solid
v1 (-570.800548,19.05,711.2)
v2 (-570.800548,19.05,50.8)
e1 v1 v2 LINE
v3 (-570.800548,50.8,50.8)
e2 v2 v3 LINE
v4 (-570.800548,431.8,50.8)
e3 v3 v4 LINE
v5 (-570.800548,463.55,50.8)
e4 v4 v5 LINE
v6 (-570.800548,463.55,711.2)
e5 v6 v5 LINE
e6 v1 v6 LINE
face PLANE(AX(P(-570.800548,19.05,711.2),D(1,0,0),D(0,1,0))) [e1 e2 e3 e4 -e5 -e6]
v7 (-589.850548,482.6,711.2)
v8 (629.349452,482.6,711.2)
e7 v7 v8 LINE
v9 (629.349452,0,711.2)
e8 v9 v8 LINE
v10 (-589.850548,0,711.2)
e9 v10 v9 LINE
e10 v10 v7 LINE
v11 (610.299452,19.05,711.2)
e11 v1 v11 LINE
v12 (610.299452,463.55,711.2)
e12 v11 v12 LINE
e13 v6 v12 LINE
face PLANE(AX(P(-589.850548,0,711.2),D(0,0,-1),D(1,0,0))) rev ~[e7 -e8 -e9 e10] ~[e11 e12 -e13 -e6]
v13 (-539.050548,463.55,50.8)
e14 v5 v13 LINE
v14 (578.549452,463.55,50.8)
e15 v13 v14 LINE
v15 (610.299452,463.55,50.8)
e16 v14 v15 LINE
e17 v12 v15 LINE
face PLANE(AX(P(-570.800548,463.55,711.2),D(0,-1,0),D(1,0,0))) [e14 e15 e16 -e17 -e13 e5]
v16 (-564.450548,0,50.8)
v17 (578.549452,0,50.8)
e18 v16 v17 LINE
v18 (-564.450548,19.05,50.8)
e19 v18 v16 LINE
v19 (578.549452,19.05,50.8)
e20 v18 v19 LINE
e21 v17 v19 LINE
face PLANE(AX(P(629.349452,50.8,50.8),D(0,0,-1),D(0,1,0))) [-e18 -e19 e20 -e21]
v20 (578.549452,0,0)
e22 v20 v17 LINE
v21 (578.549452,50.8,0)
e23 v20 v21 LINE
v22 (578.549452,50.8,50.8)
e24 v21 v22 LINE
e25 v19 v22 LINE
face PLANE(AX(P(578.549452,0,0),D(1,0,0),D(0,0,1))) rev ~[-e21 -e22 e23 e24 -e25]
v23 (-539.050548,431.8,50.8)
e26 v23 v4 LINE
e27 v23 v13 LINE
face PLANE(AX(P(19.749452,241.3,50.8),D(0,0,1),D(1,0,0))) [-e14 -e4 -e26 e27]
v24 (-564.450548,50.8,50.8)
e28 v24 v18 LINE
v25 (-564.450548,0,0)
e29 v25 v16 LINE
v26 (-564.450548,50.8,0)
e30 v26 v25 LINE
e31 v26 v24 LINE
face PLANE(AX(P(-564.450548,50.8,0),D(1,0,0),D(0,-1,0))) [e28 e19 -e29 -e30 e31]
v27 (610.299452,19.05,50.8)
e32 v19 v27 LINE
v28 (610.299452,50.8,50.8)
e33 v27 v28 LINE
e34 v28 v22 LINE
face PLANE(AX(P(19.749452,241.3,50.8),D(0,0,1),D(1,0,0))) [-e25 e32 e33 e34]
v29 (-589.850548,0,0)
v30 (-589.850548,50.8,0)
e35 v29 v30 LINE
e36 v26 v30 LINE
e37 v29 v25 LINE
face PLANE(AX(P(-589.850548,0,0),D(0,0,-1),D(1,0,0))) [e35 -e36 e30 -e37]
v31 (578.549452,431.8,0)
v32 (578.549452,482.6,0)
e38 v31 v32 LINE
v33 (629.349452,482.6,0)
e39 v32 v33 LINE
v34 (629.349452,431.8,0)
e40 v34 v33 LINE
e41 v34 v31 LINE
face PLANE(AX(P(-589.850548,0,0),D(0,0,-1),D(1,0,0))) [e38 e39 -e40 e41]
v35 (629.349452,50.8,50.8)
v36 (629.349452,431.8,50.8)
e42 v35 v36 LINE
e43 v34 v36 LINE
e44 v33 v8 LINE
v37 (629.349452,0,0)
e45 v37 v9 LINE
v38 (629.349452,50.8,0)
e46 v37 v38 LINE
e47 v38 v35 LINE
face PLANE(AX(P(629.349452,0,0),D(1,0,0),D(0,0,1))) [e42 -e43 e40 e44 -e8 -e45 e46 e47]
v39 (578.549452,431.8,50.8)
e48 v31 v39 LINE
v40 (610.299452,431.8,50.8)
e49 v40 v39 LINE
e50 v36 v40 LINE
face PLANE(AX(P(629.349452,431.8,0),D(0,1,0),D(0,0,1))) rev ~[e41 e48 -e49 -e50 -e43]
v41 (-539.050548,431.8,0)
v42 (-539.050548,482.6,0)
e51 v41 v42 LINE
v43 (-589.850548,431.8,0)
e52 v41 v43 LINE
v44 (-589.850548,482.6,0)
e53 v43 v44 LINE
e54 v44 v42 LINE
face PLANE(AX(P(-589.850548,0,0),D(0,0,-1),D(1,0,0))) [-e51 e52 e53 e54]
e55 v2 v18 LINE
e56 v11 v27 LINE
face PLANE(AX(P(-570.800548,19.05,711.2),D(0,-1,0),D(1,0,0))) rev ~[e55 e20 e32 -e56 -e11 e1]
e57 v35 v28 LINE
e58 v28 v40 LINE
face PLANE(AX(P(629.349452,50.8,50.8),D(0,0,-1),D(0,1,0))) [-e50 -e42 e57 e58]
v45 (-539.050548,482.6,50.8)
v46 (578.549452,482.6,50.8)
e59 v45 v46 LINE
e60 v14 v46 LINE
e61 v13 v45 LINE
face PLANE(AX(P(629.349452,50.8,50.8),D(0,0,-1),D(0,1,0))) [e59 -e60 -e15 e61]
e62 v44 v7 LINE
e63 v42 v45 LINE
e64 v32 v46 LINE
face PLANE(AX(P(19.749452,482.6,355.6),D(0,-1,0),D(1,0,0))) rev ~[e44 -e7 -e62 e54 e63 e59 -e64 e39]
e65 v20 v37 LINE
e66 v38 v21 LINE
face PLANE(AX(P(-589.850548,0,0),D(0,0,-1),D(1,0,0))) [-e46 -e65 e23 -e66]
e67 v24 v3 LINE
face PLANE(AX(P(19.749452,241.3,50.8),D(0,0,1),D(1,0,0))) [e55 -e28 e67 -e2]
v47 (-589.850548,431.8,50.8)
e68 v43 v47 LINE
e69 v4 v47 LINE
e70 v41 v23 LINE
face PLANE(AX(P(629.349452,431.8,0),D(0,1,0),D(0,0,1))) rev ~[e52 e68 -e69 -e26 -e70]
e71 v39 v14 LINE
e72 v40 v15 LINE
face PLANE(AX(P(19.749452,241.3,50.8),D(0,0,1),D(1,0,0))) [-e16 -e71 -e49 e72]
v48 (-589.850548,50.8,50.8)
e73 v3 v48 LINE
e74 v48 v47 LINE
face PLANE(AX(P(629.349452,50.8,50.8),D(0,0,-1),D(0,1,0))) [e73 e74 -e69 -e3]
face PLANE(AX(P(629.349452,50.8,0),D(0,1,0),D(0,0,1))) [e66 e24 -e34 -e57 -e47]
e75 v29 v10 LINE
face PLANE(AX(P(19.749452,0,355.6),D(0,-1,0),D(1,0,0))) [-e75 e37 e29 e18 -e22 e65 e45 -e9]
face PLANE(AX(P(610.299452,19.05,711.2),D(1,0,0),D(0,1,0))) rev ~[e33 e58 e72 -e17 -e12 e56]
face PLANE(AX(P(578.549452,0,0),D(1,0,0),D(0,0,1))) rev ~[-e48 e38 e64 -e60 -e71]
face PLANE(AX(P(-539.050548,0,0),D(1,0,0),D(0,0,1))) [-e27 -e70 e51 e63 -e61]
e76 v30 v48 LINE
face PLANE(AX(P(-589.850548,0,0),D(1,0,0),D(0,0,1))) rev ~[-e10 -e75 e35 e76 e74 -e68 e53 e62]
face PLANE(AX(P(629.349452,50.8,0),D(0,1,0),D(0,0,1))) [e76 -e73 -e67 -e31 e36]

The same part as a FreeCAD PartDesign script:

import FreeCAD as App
import Part
import Sketcher
Q = App.Units.Quantity

doc = App.newDocument("Part")
body = doc.addObject("PartDesign::Body", "Body")

sketch1 = body.newObject("Sketcher::SketchObject", "Sketch")
sketch1.AttachmentSupport = (doc.getObject("XZ_Plane"), [""])
sketch1.MapMode = "FlatFace"
sketch1.addGeometry([
    Part.LineSegment(App.Vector(-589.850548, 711.2, 0), App.Vector(-589.850548, 0, 0)),
    Part.LineSegment(App.Vector(-589.850548, 0, 0), App.Vector(629.349452, 0, 0)),
    Part.LineSegment(App.Vector(629.349452, 0, 0), App.Vector(629.349452, 711.2, 0)),
    Part.LineSegment(App.Vector(629.349452, 711.2, 0), App.Vector(-589.850548, 711.2, 0)),
], False)
sketch1.addConstraint([
    Sketcher.Constraint("Coincident", 0, 2, 1, 1),
    Sketcher.Constraint("Coincident", 1, 2, 2, 1),
    Sketcher.Constraint("Coincident", 2, 2, 3, 1),
    Sketcher.Constraint("Coincident", 3, 2, 0, 1),
    Sketcher.Constraint("Vertical", 0),
    Sketcher.Constraint("Horizontal", 1),
    Sketcher.Constraint("Vertical", 2),
    Sketcher.Constraint("Horizontal", 3),
    Sketcher.Constraint("PointOnObject", 0, 2, -1),
    Sketcher.Constraint("DistanceX", 1, 1, 1, 2, Q("48 in")),
    Sketcher.Constraint("DistanceY", 0, 2, 0, 1, Q("28 in")),
    Sketcher.Constraint("DistanceX", 0, 2, -1, 1, Q("589.850548 mm")),
])
pad1 = body.newObject("PartDesign::Pad", "Pad")
pad1.Profile = sketch1
pad1.Length = Q("19 in")
pad1.Reversed = True

sketch2 = body.newObject("Sketcher::SketchObject", "Sketch001")
sketch2.AttachmentSupport = (doc.getObject("XZ_Plane"), [""])
sketch2.MapMode = "FlatFace"
sketch2.addGeometry([
    Part.LineSegment(App.Vector(-539.050548, 50.8, 0), App.Vector(-539.050548, 0, 0)),
    Part.LineSegment(App.Vector(-539.050548, 0, 0), App.Vector(578.549452, 0, 0)),
    Part.LineSegment(App.Vector(578.549452, 0, 0), App.Vector(578.549452, 50.8, 0)),
    Part.LineSegment(App.Vector(578.549452, 50.8, 0), App.Vector(-539.050548, 50.8, 0)),
], False)
sketch2.addConstraint([
    Sketcher.Constraint("Coincident", 0, 2, 1, 1),
    Sketcher.Constraint("Coincident", 1, 2, 2, 1),
    Sketcher.Constraint("Coincident", 2, 2, 3, 1),
    Sketcher.Constraint("Coincident", 3, 2, 0, 1),
    Sketcher.Constraint("Vertical", 0),
    Sketcher.Constraint("Horizontal", 1),
    Sketcher.Constraint("Vertical", 2),
    Sketcher.Constraint("Horizontal", 3),
    Sketcher.Constraint("PointOnObject", 0, 2, -1),
    Sketcher.Constraint("DistanceX", 1, 1, 1, 2, Q("44 in")),
    Sketcher.Constraint("DistanceY", 0, 2, 0, 1, Q("2 in")),
    Sketcher.Constraint("DistanceX", 0, 2, -1, 1, Q("539.050548 mm")),
])
pocket1 = body.newObject("PartDesign::Pocket", "Pocket")
pocket1.Profile = sketch2
pocket1.Type = "ThroughAll"

sketch3 = body.newObject("Sketcher::SketchObject", "Sketch002")
sketch3.AttachmentSupport = (doc.getObject("YZ_Plane"), [""])
sketch3.MapMode = "FlatFace"
sketch3.AttachmentOffset = App.Placement(App.Vector(0, 0, 629.349452), App.Rotation())
sketch3.addGeometry([
    Part.LineSegment(App.Vector(50.8, 50.8, 0), App.Vector(50.8, 0, 0)),
    Part.LineSegment(App.Vector(50.8, 0, 0), App.Vector(431.8, 0, 0)),
    Part.LineSegment(App.Vector(431.8, 0, 0), App.Vector(431.8, 50.8, 0)),
    Part.LineSegment(App.Vector(431.8, 50.8, 0), App.Vector(50.8, 50.8, 0)),
], False)
sketch3.addConstraint([
    Sketcher.Constraint("Coincident", 0, 2, 1, 1),
    Sketcher.Constraint("Coincident", 1, 2, 2, 1),
    Sketcher.Constraint("Coincident", 2, 2, 3, 1),
    Sketcher.Constraint("Coincident", 3, 2, 0, 1),
    Sketcher.Constraint("Vertical", 0),
    Sketcher.Constraint("Horizontal", 1),
    Sketcher.Constraint("Vertical", 2),
    Sketcher.Constraint("Horizontal", 3),
    Sketcher.Constraint("PointOnObject", 0, 2, -1),
    Sketcher.Constraint("DistanceX", 1, 1, 1, 2, Q("15 in")),
    Sketcher.Constraint("DistanceY", 0, 2, 0, 1, Q("2 in")),
    Sketcher.Constraint("DistanceX", -1, 1, 0, 2, Q("2 in")),
])
pocket2 = body.newObject("PartDesign::Pocket", "Pocket001")
pocket2.Profile = sketch3
pocket2.Type = "ThroughAll"

sketch4 = body.newObject("Sketcher::SketchObject", "Sketch003")
sketch4.AttachmentSupport = (doc.getObject("XY_Plane"), [""])
sketch4.MapMode = "FlatFace"
sketch4.AttachmentOffset = App.Placement(App.Vector(0, 0, 28 * 25.4), App.Rotation())
sketch4.addGeometry([
    Part.LineSegment(App.Vector(-570.800548, 463.55, 0), App.Vector(-570.800548, 19.05, 0)),
    Part.LineSegment(App.Vector(-570.800548, 19.05, 0), App.Vector(610.299452, 19.05, 0)),
    Part.LineSegment(App.Vector(610.299452, 19.05, 0), App.Vector(610.299452, 463.55, 0)),
    Part.LineSegment(App.Vector(610.299452, 463.55, 0), App.Vector(-570.800548, 463.55, 0)),
], False)
sketch4.addConstraint([
    Sketcher.Constraint("Coincident", 0, 2, 1, 1),
    Sketcher.Constraint("Coincident", 1, 2, 2, 1),
    Sketcher.Constraint("Coincident", 2, 2, 3, 1),
    Sketcher.Constraint("Coincident", 3, 2, 0, 1),
    Sketcher.Constraint("Vertical", 0),
    Sketcher.Constraint("Horizontal", 1),
    Sketcher.Constraint("Vertical", 2),
    Sketcher.Constraint("Horizontal", 3),
    Sketcher.Constraint("DistanceX", 1, 1, 1, 2, Q("46.5 in")),
    Sketcher.Constraint("DistanceY", 0, 2, 0, 1, Q("17.5 in")),
    Sketcher.Constraint("DistanceY", -1, 1, 0, 2, Q("0.75 in")),
    Sketcher.Constraint("DistanceX", 0, 2, -1, 1, Q("570.800548 mm")),
])
pocket3 = body.newObject("PartDesign::Pocket", "Pocket002")
pocket3.Profile = sketch4
pocket3.Length = Q("26 in")

sketch5 = body.newObject("Sketcher::SketchObject", "Sketch004")
sketch5.AttachmentSupport = (doc.getObject("XY_Plane"), [""])
sketch5.MapMode = "FlatFace"
sketch5.addGeometry([
    Part.LineSegment(App.Vector(-564.450548, 0, 0), App.Vector(-564.450548, 50.8, 0)),
    Part.LineSegment(App.Vector(-564.450548, 50.8, 0), App.Vector(-539.050548, 50.8, 0)),
    Part.LineSegment(App.Vector(-539.050548, 50.8, 0), App.Vector(-539.050548, 0, 0)),
    Part.LineSegment(App.Vector(-539.050548, 0, 0), App.Vector(-564.450548, 0, 0)),
], False)
sketch5.addConstraint([
    Sketcher.Constraint("Coincident", 0, 2, 1, 1),
    Sketcher.Constraint("Coincident", 1, 2, 2, 1),
    Sketcher.Constraint("Coincident", 2, 2, 3, 1),
    Sketcher.Constraint("Coincident", 3, 2, 0, 1),
    Sketcher.Constraint("Vertical", 0),
    Sketcher.Constraint("Horizontal", 1),
    Sketcher.Constraint("Vertical", 2),
    Sketcher.Constraint("Horizontal", 3),
    Sketcher.Constraint("PointOnObject", 2, 2, -1),
    Sketcher.Constraint("DistanceX", 1, 1, 1, 2, Q("1 in")),
    Sketcher.Constraint("DistanceY", 0, 1, 0, 2, Q("2 in")),
    Sketcher.Constraint("DistanceX", 0, 2, -1, 1, Q("564.450548 mm")),
])
pocket4 = body.newObject("PartDesign::Pocket", "Pocket003")
pocket4.Profile = sketch5
pocket4.Length = Q("2 in")
pocket4.Reversed = True

doc.recompute()
